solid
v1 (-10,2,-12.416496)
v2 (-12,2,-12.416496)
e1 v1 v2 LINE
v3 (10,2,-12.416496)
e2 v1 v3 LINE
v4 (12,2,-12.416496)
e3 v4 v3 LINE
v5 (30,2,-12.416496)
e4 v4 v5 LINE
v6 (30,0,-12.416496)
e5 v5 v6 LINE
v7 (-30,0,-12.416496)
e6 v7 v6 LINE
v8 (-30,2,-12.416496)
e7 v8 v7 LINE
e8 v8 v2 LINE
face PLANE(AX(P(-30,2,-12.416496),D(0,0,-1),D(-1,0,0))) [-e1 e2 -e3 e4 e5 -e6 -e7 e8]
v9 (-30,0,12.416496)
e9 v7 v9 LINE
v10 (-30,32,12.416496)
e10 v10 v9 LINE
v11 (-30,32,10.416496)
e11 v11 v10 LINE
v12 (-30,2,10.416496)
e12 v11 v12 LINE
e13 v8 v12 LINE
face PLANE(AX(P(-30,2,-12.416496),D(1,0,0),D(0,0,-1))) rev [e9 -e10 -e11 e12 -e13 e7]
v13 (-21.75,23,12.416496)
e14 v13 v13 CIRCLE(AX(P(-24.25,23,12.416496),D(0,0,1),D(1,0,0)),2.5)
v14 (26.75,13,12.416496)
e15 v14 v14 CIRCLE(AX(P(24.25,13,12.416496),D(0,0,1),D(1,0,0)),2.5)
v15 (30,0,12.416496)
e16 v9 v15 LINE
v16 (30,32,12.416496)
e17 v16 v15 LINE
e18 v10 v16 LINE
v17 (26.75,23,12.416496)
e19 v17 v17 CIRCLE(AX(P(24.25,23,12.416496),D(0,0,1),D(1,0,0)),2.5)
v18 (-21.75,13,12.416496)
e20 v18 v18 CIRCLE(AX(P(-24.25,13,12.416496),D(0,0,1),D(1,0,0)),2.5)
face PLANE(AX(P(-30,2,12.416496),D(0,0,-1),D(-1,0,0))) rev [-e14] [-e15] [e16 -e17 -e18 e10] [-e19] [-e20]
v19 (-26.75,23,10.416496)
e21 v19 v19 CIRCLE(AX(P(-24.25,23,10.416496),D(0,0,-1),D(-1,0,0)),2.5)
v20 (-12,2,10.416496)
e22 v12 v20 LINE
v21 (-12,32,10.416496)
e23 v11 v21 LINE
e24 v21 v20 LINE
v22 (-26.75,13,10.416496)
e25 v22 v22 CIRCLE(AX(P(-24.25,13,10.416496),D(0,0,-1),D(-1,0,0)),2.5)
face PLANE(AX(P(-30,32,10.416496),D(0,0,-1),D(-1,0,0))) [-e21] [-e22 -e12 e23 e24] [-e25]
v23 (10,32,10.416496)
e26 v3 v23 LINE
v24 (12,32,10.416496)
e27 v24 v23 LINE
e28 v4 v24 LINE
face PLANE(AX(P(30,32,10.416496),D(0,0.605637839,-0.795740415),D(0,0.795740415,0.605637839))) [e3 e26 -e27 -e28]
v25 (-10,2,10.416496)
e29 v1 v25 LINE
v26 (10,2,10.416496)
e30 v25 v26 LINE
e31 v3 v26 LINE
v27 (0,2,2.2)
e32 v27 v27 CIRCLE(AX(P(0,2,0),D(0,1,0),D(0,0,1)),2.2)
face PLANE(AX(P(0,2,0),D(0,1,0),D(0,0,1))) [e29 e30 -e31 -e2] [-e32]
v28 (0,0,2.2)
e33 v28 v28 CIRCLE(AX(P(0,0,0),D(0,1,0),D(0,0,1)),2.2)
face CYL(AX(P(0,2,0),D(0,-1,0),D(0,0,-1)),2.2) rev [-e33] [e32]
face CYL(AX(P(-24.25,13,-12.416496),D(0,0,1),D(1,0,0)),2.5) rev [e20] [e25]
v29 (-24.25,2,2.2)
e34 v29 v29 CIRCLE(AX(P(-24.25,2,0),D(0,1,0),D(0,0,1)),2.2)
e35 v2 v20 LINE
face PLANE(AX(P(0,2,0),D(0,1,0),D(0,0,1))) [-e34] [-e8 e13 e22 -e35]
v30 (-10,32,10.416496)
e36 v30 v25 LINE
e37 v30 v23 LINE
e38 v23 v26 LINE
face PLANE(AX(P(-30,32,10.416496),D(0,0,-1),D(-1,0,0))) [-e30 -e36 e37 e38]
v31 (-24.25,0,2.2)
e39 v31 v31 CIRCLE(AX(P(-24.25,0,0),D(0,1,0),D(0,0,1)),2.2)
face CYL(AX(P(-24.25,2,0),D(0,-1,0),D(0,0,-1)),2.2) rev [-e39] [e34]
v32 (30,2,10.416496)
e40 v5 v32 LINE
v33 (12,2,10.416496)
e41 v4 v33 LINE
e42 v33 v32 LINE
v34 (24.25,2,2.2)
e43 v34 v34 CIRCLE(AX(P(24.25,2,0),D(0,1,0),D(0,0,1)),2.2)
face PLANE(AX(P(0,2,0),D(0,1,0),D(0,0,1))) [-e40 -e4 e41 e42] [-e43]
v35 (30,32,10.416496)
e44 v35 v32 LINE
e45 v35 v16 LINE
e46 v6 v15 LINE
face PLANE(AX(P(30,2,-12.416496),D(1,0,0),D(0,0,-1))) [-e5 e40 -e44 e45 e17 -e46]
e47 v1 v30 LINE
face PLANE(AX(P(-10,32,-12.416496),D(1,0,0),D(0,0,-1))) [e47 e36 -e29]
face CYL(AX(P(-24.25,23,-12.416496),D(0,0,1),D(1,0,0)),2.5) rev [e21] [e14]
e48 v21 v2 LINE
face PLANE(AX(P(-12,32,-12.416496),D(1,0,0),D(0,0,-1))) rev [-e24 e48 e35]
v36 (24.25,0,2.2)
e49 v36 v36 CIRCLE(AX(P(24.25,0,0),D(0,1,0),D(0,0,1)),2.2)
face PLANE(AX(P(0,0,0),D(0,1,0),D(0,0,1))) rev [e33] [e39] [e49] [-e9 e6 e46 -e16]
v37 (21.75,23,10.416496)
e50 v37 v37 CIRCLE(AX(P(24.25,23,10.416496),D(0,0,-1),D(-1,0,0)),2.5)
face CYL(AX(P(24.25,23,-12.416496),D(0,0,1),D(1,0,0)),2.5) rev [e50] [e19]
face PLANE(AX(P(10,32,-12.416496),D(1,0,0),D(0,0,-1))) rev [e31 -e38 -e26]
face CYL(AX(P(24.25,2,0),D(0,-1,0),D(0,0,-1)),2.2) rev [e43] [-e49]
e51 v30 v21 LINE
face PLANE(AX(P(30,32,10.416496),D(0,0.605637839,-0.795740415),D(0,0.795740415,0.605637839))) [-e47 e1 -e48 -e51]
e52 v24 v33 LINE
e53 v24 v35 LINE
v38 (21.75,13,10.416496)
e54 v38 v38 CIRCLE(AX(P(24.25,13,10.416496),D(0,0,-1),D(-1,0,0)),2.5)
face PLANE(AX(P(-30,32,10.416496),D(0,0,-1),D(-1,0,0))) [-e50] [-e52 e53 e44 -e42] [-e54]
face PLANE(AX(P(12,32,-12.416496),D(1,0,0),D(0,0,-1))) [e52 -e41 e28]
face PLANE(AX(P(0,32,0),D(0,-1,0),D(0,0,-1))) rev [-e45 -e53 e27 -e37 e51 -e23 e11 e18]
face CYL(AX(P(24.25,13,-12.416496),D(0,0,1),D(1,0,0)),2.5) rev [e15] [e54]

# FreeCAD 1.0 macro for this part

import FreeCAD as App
import Part
import Sketcher
from FreeCAD import Vector

doc = App.newDocument("Part")
body = doc.addObject("PartDesign::Body", "Body")

sketch1 = body.newObject("Sketcher::SketchObject", "Sketch")
sketch1.AttachmentSupport = (doc.getObject("XZ_Plane"), [""])
sketch1.MapMode = "FlatFace"
sketch1.addGeometry([
    Part.LineSegment(Vector(-30, -12.416496, 0), Vector(-30, 12.416496, 0)),
    Part.LineSegment(Vector(-30, 12.416496, 0), Vector(30, 12.416496, 0)),
    Part.LineSegment(Vector(30, 12.416496, 0), Vector(30, -12.416496, 0)),
    Part.LineSegment(Vector(30, -12.416496, 0), Vector(-30, -12.416496, 0)),
    Part.Circle(Vector(-24.25, 0, 0), Vector(0, 0, 1), 2.2),
    Part.Circle(Vector(0, 0, 0), Vector(0, 0, 1), 2.2),
    Part.Circle(Vector(24.25, 0, 0), Vector(0, 0, 1), 2.2),
], False)
sketch1.addConstraint([
    Sketcher.Constraint("Coincident", 0, 2, 1, 1),
    Sketcher.Constraint("Coincident", 1, 2, 2, 1),
    Sketcher.Constraint("Coincident", 2, 2, 3, 1),
    Sketcher.Constraint("Coincident", 3, 2, 0, 1),
    Sketcher.Constraint("Vertical", 0),
    Sketcher.Constraint("Horizontal", 1),
    Sketcher.Constraint("Vertical", 2),
    Sketcher.Constraint("Horizontal", 3),
    Sketcher.Constraint("Coincident", 5, 3, -1, 1),
    Sketcher.Constraint("Equal", 4, 5),
    Sketcher.Constraint("Equal", 5, 6),
    Sketcher.Constraint("Symmetric", 4, 3, 6, 3, -1, 1),
    Sketcher.Constraint("Symmetric", 0, 2, 2, 2, -1, 1),
    Sketcher.Constraint("PointOnObject", 4, 3, -1),
    Sketcher.Constraint("Diameter", 4, 4.4),
    Sketcher.Constraint("DistanceX", 1, 1, 1, 2, 60.0),
    Sketcher.Constraint("DistanceX", 4, 3, 6, 3, 48.5),
    Sketcher.Constraint("DistanceY", 0, 1, 0, 2, 24.832993),
])
pad1 = body.newObject("PartDesign::Pad", "Pad")
pad1.Profile = sketch1
pad1.Length = 2
pad1.Reversed = True

sketch2 = body.newObject("Sketcher::SketchObject", "Sketch001")
sketch2.AttachmentSupport = (doc.getObject("XZ_Plane"), [""])
sketch2.MapMode = "FlatFace"
sketch2.AttachmentOffset = App.Placement(Vector(0, 0, -2), App.Rotation())
sketch2.addGeometry([
    Part.LineSegment(Vector(-12, -12.416496, 0), Vector(-12, 10.416496, 0)),
    Part.LineSegment(Vector(-12, 10.416496, 0), Vector(-30, 10.416496, 0)),
    Part.LineSegment(Vector(-30, 10.416496, 0), Vector(-30, 12.416496, 0)),
    Part.LineSegment(Vector(-30, 12.416496, 0), Vector(30, 12.416496, 0)),
    Part.LineSegment(Vector(30, 12.416496, 0), Vector(30, 10.416496, 0)),
    Part.LineSegment(Vector(30, 10.416496, 0), Vector(12, 10.416496, 0)),
    Part.LineSegment(Vector(12, 10.416496, 0), Vector(12, -12.416496, 0)),
    Part.LineSegment(Vector(12, -12.416496, 0), Vector(10, -12.416496, 0)),
    Part.LineSegment(Vector(10, -12.416496, 0), Vector(10, 10.416496, 0)),
    Part.LineSegment(Vector(10, 10.416496, 0), Vector(-10, 10.416496, 0)),
    Part.LineSegment(Vector(-10, 10.416496, 0), Vector(-10, -12.416496, 0)),
    Part.LineSegment(Vector(-10, -12.416496, 0), Vector(-12, -12.416496, 0)),
], False)
sketch2.addConstraint([
    Sketcher.Constraint("Coincident", 0, 2, 1, 1),
    Sketcher.Constraint("Coincident", 1, 2, 2, 1),
    Sketcher.Constraint("Coincident", 2, 2, 3, 1),
    Sketcher.Constraint("Coincident", 3, 2, 4, 1),
    Sketcher.Constraint("Coincident", 4, 2, 5, 1),
    Sketcher.Constraint("Coincident", 5, 2, 6, 1),
    Sketcher.Constraint("Coincident", 6, 2, 7, 1),
    Sketcher.Constraint("Coincident", 7, 2, 8, 1),
    Sketcher.Constraint("Coincident", 8, 2, 9, 1),
    Sketcher.Constraint("Coincident", 9, 2, 10, 1),
    Sketcher.Constraint("Coincident", 10, 2, 11, 1),
    Sketcher.Constraint("Coincident", 11, 2, 0, 1),
    Sketcher.Constraint("Vertical", 0),
    Sketcher.Constraint("Horizontal", 1),
    Sketcher.Constraint("Vertical", 2),
    Sketcher.Constraint("Horizontal", 3),
    Sketcher.Constraint("Vertical", 4),
    Sketcher.Constraint("Horizontal", 5),
    Sketcher.Constraint("Vertical", 6),
    Sketcher.Constraint("Horizontal", 7),
    Sketcher.Constraint("Vertical", 8),
    Sketcher.Constraint("Horizontal", 9),
    Sketcher.Constraint("Vertical", 10),
    Sketcher.Constraint("Horizontal", 11),
    Sketcher.Constraint("Symmetric", 1, 2, 4, 2, -2),
    Sketcher.Constraint("Symmetric", 7, 2, 10, 2, -2),
    Sketcher.Constraint("Horizontal", 5, 2, 8, 2),
    Sketcher.Constraint("Equal", 1, 5),
    Sketcher.Constraint("Equal", 11, 2),
    Sketcher.Constraint("DistanceX", 1, 2, 1, 1, 18.0),
    Sketcher.Constraint("DistanceX", 3, 1, 3, 2, 60.0),
    Sketcher.Constraint("DistanceX", 7, 2, 7, 1, 2.0),
    Sketcher.Constraint("DistanceY", 0, 1, 0, 2, 22.832993),
    Sketcher.Constraint("DistanceY", -1, 1, 0, 2, 10.416496),
])
pad2 = body.newObject("PartDesign::Pad", "Pad001")
pad2.Profile = sketch2
pad2.Length = 30
pad2.Reversed = True

sketch3 = body.newObject("Sketcher::SketchObject", "Sketch002")
sketch3.AttachmentSupport = (doc.getObject("YZ_Plane"), [""])
sketch3.MapMode = "FlatFace"
sketch3.AttachmentOffset = App.Placement(Vector(0, 0, -12), App.Rotation())
sketch3.addGeometry([
    Part.LineSegment(Vector(2, -12.416496, 0), Vector(32, 10.416496, 0)),
    Part.LineSegment(Vector(32, 10.416496, 0), Vector(32, -12.416496, 0)),
    Part.LineSegment(Vector(32, -12.416496, 0), Vector(2, -12.416496, 0)),
], False)
sketch3.addConstraint([
    Sketcher.Constraint("Coincident", 0, 2, 1, 1),
    Sketcher.Constraint("Coincident", 1, 2, 2, 1),
    Sketcher.Constraint("Coincident", 2, 2, 0, 1),
    Sketcher.Constraint("Vertical", 1),
    Sketcher.Constraint("Horizontal", 2),
    Sketcher.Constraint("DistanceX", 2, 2, 2, 1, 30.0),
    Sketcher.Constraint("DistanceX", -1, 1, 0, 2, 32.0),
    Sketcher.Constraint("DistanceY", 1, 2, 1, 1, 22.832993),
    Sketcher.Constraint("DistanceY", -1, 1, 0, 2, 10.416496),
])
pocket1 = body.newObject("PartDesign::Pocket", "Pocket")
pocket1.Profile = sketch3
pocket1.Type = "ThroughAll"
pocket1.Reversed = True

sketch4 = body.newObject("Sketcher::SketchObject", "Sketch003")
sketch4.AttachmentSupport = (doc.getObject("XY_Plane"), [""])
sketch4.MapMode = "FlatFace"
sketch4.AttachmentOffset = App.Placement(Vector(0, 0, 12.416496), App.Rotation())
sketch4.addGeometry([
    Part.Circle(Vector(-24.25, 13, 0), Vector(0, 0, 1), 2.5),
    Part.Circle(Vector(24.25, 13, 0), Vector(0, 0, 1), 2.5),
    Part.Circle(Vector(24.25, 23, 0), Vector(0, 0, 1), 2.5),
    Part.Circle(Vector(-24.25, 23, 0), Vector(0, 0, 1), 2.5),
], False)
sketch4.addConstraint([
    Sketcher.Constraint("Equal", 0, 1),
    Sketcher.Constraint("Equal", 1, 2),
    Sketcher.Constraint("Equal", 2, 3),
    Sketcher.Constraint("Symmetric", 0, 3, 1, 3, -2),
    Sketcher.Constraint("Symmetric", 2, 3, 3, 3, -2),
    Sketcher.Constraint("Vertical", 1, 3, 2, 3),
    Sketcher.Constraint("Diameter", 0, 5.0),
    Sketcher.Constraint("DistanceY", -1, 1, 0, 3, 13.0),
    Sketcher.Constraint("DistanceY", -1, 1, 2, 3, 23.0),
    Sketcher.Constraint("DistanceX", 0, 3, 1, 3, 48.5),
])
pocket2 = body.newObject("PartDesign::Pocket", "Pocket001")
pocket2.Profile = sketch4
pocket2.Type = "ThroughAll"

doc.recompute()
